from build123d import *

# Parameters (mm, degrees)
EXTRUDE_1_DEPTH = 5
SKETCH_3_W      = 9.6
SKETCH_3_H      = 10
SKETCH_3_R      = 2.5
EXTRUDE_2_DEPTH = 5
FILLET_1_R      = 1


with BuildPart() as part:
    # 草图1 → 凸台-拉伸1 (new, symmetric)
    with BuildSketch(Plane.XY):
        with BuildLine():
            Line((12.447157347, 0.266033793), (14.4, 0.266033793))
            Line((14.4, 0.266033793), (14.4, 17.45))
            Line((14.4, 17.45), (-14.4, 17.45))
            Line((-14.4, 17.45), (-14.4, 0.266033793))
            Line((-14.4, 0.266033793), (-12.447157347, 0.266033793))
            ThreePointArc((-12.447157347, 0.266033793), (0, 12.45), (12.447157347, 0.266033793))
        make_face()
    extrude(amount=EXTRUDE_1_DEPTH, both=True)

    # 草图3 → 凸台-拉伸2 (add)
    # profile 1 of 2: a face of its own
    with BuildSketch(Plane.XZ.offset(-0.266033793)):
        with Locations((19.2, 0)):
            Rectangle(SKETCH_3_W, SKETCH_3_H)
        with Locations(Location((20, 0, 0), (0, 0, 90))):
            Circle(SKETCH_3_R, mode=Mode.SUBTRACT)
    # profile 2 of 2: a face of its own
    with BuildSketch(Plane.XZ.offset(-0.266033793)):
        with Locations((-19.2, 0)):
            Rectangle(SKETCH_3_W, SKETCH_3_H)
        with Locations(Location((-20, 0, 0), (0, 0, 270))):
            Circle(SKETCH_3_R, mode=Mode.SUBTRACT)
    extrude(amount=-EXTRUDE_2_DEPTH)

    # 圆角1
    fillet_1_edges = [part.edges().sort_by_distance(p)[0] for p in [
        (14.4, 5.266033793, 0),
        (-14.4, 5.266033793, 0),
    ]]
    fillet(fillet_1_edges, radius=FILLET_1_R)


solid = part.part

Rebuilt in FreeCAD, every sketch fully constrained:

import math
import FreeCAD as App
import Part
import Sketcher

V = App.Vector


def edges_at(feature, points):
    """Names of the edges that pass closest to the given points."""
    edges = feature.Shape.Edges
    near = lambda p: min(range(len(edges)), key=lambda i: edges[i].distToShape(Part.Vertex(*p))[0])
    return sorted({f"Edge{near(p) + 1}" for p in points})


def add_polygon(sketch, points):
    """Adds a closed chain of lines whose ends are joined by coincident constraints."""
    first, n = sketch.GeometryCount, len(points)
    for a, b in zip(points, points[1:] + points[:1]):
        sketch.addGeometry(Part.LineSegment(App.Vector(*a, 0), App.Vector(*b, 0)), False)
    for i in range(n):
        sketch.addConstraint(Sketcher.Constraint("Coincident", first + i, 2, first + (i + 1) % n, 1))

doc = App.newDocument("Part")
body = doc.addObject("PartDesign::Body", "Body")

sketch1 = doc.addObject("Sketcher::SketchObject", "Sketch")
body.addObject(sketch1)
sketch1.AttachmentSupport = (doc.XY_Plane, [""])
sketch1.MapMode = "FlatFace"
sketch1.addGeometry([
    Part.LineSegment(V(12.447157, 0.266034, 0), V(14.4, 0.266034, 0)),
    Part.LineSegment(V(14.4, 0.266034, 0), V(14.4, 17.45, 0)),
    Part.LineSegment(V(14.4, 17.45, 0), V(-14.4, 17.45, 0)),
    Part.LineSegment(V(-14.4, 17.45, 0), V(-14.4, 0.266034, 0)),
    Part.LineSegment(V(-14.4, 0.266034, 0), V(-12.447157, 0.266034, 0)),
    Part.ArcOfCircle(Part.Circle(V(0, 0, 0), V(0, 0, 1), 12.45), math.radians(1.224399), math.radians(178.775601)),
], False)
sketch1.addConstraint([
    Sketcher.Constraint("Coincident", 0, 2, 1, 1),
    Sketcher.Constraint("Coincident", 1, 2, 2, 1),
    Sketcher.Constraint("Coincident", 2, 2, 3, 1),
    Sketcher.Constraint("Coincident", 3, 2, 4, 1),
    Sketcher.Constraint("Coincident", 4, 2, 5, 2),
    Sketcher.Constraint("Coincident", 5, 1, 0, 1),
    Sketcher.Constraint("Horizontal", 0),
    Sketcher.Constraint("Vertical", 1),
    Sketcher.Constraint("Horizontal", 2),
    Sketcher.Constraint("Vertical", 3),
    Sketcher.Constraint("Horizontal", 4),
    Sketcher.Constraint("Coincident", 5, 3, -1, 1),
    Sketcher.Constraint("Symmetric", 0, 2, 3, 2, -2),
    Sketcher.Constraint("Radius", 5, 12.45),
    Sketcher.Constraint("DistanceX", 2, 2, 2, 1, 28.8),
    Sketcher.Constraint("DistanceY", -1, 1, 1, 2, 17.45),
    Sketcher.Constraint("DistanceX", 0, 1, 0, 2, 1.952843),
])
pad1 = doc.addObject("PartDesign::Pad", "Pad")
body.addObject(pad1)
pad1.Profile = sketch1
pad1.Length = 10
pad1.Midplane = True

sketch2 = doc.addObject("Sketcher::SketchObject", "Sketch001")
body.addObject(sketch2)
sketch2.AttachmentSupport = (doc.XZ_Plane, [""])
sketch2.MapMode = "FlatFace"
sketch2.AttachmentOffset = App.Placement(V(0, 0, -0.266034), App.Rotation())
add_polygon(sketch2, [(14.4, 5), (14.4, -5), (24, -5), (24, 5)])
sketch2.addGeometry(Part.Circle(V(20, 0, 0), V(0, 0, 1), 2.5), False)
add_polygon(sketch2, [(-24, 5), (-24, -5), (-14.4, -5), (-14.4, 5)])
sketch2.addGeometry(Part.Circle(V(-20, 0, 0), V(0, 0, 1), 2.5), False)
sketch2.addConstraint([
    Sketcher.Constraint("Vertical", 0),
    Sketcher.Constraint("Horizontal", 1),
    Sketcher.Constraint("Vertical", 2),
    Sketcher.Constraint("Horizontal", 3),
    Sketcher.Constraint("Vertical", 5),
    Sketcher.Constraint("Horizontal", 6),
    Sketcher.Constraint("Vertical", 7),
    Sketcher.Constraint("Horizontal", 8),
    Sketcher.Constraint("Equal", 4, 9),
    Sketcher.Constraint("Symmetric", 4, 3, 9, 3, -1, 1),
    Sketcher.Constraint("Symmetric", 2, 2, 5, 2, -1, 1),
    Sketcher.Constraint("Symmetric", 0, 2, 7, 2, -1, 1),
    Sketcher.Constraint("PointOnObject", 4, 3, -1),
    Sketcher.Constraint("Horizontal", 1, 2, 5, 2),
    Sketcher.Constraint("Diameter", 4, 5.0),
    Sketcher.Constraint("DistanceY", 0, 2, 0, 1, 10.0),
    Sketcher.Constraint("DistanceX", 1, 1, 1, 2, 9.6),
    Sketcher.Constraint("DistanceX", -1, 1, 4, 3, 20.0),
    Sketcher.Constraint("DistanceX", -1, 1, 1, 2, 24.0),
])
pad2 = doc.addObject("PartDesign::Pad", "Pad001")
body.addObject(pad2)
pad2.Profile = sketch2
pad2.Length = 5
pad2.Reversed = True
doc.recompute()

fillet = doc.addObject("PartDesign::Fillet", "Fillet")
body.addObject(fillet)
fillet.Base = (pad2, edges_at(pad2, [(14.4, 5.266, 0), (-14.4, 5.266, 0)]))
fillet.Radius = 1

doc.recompute()
